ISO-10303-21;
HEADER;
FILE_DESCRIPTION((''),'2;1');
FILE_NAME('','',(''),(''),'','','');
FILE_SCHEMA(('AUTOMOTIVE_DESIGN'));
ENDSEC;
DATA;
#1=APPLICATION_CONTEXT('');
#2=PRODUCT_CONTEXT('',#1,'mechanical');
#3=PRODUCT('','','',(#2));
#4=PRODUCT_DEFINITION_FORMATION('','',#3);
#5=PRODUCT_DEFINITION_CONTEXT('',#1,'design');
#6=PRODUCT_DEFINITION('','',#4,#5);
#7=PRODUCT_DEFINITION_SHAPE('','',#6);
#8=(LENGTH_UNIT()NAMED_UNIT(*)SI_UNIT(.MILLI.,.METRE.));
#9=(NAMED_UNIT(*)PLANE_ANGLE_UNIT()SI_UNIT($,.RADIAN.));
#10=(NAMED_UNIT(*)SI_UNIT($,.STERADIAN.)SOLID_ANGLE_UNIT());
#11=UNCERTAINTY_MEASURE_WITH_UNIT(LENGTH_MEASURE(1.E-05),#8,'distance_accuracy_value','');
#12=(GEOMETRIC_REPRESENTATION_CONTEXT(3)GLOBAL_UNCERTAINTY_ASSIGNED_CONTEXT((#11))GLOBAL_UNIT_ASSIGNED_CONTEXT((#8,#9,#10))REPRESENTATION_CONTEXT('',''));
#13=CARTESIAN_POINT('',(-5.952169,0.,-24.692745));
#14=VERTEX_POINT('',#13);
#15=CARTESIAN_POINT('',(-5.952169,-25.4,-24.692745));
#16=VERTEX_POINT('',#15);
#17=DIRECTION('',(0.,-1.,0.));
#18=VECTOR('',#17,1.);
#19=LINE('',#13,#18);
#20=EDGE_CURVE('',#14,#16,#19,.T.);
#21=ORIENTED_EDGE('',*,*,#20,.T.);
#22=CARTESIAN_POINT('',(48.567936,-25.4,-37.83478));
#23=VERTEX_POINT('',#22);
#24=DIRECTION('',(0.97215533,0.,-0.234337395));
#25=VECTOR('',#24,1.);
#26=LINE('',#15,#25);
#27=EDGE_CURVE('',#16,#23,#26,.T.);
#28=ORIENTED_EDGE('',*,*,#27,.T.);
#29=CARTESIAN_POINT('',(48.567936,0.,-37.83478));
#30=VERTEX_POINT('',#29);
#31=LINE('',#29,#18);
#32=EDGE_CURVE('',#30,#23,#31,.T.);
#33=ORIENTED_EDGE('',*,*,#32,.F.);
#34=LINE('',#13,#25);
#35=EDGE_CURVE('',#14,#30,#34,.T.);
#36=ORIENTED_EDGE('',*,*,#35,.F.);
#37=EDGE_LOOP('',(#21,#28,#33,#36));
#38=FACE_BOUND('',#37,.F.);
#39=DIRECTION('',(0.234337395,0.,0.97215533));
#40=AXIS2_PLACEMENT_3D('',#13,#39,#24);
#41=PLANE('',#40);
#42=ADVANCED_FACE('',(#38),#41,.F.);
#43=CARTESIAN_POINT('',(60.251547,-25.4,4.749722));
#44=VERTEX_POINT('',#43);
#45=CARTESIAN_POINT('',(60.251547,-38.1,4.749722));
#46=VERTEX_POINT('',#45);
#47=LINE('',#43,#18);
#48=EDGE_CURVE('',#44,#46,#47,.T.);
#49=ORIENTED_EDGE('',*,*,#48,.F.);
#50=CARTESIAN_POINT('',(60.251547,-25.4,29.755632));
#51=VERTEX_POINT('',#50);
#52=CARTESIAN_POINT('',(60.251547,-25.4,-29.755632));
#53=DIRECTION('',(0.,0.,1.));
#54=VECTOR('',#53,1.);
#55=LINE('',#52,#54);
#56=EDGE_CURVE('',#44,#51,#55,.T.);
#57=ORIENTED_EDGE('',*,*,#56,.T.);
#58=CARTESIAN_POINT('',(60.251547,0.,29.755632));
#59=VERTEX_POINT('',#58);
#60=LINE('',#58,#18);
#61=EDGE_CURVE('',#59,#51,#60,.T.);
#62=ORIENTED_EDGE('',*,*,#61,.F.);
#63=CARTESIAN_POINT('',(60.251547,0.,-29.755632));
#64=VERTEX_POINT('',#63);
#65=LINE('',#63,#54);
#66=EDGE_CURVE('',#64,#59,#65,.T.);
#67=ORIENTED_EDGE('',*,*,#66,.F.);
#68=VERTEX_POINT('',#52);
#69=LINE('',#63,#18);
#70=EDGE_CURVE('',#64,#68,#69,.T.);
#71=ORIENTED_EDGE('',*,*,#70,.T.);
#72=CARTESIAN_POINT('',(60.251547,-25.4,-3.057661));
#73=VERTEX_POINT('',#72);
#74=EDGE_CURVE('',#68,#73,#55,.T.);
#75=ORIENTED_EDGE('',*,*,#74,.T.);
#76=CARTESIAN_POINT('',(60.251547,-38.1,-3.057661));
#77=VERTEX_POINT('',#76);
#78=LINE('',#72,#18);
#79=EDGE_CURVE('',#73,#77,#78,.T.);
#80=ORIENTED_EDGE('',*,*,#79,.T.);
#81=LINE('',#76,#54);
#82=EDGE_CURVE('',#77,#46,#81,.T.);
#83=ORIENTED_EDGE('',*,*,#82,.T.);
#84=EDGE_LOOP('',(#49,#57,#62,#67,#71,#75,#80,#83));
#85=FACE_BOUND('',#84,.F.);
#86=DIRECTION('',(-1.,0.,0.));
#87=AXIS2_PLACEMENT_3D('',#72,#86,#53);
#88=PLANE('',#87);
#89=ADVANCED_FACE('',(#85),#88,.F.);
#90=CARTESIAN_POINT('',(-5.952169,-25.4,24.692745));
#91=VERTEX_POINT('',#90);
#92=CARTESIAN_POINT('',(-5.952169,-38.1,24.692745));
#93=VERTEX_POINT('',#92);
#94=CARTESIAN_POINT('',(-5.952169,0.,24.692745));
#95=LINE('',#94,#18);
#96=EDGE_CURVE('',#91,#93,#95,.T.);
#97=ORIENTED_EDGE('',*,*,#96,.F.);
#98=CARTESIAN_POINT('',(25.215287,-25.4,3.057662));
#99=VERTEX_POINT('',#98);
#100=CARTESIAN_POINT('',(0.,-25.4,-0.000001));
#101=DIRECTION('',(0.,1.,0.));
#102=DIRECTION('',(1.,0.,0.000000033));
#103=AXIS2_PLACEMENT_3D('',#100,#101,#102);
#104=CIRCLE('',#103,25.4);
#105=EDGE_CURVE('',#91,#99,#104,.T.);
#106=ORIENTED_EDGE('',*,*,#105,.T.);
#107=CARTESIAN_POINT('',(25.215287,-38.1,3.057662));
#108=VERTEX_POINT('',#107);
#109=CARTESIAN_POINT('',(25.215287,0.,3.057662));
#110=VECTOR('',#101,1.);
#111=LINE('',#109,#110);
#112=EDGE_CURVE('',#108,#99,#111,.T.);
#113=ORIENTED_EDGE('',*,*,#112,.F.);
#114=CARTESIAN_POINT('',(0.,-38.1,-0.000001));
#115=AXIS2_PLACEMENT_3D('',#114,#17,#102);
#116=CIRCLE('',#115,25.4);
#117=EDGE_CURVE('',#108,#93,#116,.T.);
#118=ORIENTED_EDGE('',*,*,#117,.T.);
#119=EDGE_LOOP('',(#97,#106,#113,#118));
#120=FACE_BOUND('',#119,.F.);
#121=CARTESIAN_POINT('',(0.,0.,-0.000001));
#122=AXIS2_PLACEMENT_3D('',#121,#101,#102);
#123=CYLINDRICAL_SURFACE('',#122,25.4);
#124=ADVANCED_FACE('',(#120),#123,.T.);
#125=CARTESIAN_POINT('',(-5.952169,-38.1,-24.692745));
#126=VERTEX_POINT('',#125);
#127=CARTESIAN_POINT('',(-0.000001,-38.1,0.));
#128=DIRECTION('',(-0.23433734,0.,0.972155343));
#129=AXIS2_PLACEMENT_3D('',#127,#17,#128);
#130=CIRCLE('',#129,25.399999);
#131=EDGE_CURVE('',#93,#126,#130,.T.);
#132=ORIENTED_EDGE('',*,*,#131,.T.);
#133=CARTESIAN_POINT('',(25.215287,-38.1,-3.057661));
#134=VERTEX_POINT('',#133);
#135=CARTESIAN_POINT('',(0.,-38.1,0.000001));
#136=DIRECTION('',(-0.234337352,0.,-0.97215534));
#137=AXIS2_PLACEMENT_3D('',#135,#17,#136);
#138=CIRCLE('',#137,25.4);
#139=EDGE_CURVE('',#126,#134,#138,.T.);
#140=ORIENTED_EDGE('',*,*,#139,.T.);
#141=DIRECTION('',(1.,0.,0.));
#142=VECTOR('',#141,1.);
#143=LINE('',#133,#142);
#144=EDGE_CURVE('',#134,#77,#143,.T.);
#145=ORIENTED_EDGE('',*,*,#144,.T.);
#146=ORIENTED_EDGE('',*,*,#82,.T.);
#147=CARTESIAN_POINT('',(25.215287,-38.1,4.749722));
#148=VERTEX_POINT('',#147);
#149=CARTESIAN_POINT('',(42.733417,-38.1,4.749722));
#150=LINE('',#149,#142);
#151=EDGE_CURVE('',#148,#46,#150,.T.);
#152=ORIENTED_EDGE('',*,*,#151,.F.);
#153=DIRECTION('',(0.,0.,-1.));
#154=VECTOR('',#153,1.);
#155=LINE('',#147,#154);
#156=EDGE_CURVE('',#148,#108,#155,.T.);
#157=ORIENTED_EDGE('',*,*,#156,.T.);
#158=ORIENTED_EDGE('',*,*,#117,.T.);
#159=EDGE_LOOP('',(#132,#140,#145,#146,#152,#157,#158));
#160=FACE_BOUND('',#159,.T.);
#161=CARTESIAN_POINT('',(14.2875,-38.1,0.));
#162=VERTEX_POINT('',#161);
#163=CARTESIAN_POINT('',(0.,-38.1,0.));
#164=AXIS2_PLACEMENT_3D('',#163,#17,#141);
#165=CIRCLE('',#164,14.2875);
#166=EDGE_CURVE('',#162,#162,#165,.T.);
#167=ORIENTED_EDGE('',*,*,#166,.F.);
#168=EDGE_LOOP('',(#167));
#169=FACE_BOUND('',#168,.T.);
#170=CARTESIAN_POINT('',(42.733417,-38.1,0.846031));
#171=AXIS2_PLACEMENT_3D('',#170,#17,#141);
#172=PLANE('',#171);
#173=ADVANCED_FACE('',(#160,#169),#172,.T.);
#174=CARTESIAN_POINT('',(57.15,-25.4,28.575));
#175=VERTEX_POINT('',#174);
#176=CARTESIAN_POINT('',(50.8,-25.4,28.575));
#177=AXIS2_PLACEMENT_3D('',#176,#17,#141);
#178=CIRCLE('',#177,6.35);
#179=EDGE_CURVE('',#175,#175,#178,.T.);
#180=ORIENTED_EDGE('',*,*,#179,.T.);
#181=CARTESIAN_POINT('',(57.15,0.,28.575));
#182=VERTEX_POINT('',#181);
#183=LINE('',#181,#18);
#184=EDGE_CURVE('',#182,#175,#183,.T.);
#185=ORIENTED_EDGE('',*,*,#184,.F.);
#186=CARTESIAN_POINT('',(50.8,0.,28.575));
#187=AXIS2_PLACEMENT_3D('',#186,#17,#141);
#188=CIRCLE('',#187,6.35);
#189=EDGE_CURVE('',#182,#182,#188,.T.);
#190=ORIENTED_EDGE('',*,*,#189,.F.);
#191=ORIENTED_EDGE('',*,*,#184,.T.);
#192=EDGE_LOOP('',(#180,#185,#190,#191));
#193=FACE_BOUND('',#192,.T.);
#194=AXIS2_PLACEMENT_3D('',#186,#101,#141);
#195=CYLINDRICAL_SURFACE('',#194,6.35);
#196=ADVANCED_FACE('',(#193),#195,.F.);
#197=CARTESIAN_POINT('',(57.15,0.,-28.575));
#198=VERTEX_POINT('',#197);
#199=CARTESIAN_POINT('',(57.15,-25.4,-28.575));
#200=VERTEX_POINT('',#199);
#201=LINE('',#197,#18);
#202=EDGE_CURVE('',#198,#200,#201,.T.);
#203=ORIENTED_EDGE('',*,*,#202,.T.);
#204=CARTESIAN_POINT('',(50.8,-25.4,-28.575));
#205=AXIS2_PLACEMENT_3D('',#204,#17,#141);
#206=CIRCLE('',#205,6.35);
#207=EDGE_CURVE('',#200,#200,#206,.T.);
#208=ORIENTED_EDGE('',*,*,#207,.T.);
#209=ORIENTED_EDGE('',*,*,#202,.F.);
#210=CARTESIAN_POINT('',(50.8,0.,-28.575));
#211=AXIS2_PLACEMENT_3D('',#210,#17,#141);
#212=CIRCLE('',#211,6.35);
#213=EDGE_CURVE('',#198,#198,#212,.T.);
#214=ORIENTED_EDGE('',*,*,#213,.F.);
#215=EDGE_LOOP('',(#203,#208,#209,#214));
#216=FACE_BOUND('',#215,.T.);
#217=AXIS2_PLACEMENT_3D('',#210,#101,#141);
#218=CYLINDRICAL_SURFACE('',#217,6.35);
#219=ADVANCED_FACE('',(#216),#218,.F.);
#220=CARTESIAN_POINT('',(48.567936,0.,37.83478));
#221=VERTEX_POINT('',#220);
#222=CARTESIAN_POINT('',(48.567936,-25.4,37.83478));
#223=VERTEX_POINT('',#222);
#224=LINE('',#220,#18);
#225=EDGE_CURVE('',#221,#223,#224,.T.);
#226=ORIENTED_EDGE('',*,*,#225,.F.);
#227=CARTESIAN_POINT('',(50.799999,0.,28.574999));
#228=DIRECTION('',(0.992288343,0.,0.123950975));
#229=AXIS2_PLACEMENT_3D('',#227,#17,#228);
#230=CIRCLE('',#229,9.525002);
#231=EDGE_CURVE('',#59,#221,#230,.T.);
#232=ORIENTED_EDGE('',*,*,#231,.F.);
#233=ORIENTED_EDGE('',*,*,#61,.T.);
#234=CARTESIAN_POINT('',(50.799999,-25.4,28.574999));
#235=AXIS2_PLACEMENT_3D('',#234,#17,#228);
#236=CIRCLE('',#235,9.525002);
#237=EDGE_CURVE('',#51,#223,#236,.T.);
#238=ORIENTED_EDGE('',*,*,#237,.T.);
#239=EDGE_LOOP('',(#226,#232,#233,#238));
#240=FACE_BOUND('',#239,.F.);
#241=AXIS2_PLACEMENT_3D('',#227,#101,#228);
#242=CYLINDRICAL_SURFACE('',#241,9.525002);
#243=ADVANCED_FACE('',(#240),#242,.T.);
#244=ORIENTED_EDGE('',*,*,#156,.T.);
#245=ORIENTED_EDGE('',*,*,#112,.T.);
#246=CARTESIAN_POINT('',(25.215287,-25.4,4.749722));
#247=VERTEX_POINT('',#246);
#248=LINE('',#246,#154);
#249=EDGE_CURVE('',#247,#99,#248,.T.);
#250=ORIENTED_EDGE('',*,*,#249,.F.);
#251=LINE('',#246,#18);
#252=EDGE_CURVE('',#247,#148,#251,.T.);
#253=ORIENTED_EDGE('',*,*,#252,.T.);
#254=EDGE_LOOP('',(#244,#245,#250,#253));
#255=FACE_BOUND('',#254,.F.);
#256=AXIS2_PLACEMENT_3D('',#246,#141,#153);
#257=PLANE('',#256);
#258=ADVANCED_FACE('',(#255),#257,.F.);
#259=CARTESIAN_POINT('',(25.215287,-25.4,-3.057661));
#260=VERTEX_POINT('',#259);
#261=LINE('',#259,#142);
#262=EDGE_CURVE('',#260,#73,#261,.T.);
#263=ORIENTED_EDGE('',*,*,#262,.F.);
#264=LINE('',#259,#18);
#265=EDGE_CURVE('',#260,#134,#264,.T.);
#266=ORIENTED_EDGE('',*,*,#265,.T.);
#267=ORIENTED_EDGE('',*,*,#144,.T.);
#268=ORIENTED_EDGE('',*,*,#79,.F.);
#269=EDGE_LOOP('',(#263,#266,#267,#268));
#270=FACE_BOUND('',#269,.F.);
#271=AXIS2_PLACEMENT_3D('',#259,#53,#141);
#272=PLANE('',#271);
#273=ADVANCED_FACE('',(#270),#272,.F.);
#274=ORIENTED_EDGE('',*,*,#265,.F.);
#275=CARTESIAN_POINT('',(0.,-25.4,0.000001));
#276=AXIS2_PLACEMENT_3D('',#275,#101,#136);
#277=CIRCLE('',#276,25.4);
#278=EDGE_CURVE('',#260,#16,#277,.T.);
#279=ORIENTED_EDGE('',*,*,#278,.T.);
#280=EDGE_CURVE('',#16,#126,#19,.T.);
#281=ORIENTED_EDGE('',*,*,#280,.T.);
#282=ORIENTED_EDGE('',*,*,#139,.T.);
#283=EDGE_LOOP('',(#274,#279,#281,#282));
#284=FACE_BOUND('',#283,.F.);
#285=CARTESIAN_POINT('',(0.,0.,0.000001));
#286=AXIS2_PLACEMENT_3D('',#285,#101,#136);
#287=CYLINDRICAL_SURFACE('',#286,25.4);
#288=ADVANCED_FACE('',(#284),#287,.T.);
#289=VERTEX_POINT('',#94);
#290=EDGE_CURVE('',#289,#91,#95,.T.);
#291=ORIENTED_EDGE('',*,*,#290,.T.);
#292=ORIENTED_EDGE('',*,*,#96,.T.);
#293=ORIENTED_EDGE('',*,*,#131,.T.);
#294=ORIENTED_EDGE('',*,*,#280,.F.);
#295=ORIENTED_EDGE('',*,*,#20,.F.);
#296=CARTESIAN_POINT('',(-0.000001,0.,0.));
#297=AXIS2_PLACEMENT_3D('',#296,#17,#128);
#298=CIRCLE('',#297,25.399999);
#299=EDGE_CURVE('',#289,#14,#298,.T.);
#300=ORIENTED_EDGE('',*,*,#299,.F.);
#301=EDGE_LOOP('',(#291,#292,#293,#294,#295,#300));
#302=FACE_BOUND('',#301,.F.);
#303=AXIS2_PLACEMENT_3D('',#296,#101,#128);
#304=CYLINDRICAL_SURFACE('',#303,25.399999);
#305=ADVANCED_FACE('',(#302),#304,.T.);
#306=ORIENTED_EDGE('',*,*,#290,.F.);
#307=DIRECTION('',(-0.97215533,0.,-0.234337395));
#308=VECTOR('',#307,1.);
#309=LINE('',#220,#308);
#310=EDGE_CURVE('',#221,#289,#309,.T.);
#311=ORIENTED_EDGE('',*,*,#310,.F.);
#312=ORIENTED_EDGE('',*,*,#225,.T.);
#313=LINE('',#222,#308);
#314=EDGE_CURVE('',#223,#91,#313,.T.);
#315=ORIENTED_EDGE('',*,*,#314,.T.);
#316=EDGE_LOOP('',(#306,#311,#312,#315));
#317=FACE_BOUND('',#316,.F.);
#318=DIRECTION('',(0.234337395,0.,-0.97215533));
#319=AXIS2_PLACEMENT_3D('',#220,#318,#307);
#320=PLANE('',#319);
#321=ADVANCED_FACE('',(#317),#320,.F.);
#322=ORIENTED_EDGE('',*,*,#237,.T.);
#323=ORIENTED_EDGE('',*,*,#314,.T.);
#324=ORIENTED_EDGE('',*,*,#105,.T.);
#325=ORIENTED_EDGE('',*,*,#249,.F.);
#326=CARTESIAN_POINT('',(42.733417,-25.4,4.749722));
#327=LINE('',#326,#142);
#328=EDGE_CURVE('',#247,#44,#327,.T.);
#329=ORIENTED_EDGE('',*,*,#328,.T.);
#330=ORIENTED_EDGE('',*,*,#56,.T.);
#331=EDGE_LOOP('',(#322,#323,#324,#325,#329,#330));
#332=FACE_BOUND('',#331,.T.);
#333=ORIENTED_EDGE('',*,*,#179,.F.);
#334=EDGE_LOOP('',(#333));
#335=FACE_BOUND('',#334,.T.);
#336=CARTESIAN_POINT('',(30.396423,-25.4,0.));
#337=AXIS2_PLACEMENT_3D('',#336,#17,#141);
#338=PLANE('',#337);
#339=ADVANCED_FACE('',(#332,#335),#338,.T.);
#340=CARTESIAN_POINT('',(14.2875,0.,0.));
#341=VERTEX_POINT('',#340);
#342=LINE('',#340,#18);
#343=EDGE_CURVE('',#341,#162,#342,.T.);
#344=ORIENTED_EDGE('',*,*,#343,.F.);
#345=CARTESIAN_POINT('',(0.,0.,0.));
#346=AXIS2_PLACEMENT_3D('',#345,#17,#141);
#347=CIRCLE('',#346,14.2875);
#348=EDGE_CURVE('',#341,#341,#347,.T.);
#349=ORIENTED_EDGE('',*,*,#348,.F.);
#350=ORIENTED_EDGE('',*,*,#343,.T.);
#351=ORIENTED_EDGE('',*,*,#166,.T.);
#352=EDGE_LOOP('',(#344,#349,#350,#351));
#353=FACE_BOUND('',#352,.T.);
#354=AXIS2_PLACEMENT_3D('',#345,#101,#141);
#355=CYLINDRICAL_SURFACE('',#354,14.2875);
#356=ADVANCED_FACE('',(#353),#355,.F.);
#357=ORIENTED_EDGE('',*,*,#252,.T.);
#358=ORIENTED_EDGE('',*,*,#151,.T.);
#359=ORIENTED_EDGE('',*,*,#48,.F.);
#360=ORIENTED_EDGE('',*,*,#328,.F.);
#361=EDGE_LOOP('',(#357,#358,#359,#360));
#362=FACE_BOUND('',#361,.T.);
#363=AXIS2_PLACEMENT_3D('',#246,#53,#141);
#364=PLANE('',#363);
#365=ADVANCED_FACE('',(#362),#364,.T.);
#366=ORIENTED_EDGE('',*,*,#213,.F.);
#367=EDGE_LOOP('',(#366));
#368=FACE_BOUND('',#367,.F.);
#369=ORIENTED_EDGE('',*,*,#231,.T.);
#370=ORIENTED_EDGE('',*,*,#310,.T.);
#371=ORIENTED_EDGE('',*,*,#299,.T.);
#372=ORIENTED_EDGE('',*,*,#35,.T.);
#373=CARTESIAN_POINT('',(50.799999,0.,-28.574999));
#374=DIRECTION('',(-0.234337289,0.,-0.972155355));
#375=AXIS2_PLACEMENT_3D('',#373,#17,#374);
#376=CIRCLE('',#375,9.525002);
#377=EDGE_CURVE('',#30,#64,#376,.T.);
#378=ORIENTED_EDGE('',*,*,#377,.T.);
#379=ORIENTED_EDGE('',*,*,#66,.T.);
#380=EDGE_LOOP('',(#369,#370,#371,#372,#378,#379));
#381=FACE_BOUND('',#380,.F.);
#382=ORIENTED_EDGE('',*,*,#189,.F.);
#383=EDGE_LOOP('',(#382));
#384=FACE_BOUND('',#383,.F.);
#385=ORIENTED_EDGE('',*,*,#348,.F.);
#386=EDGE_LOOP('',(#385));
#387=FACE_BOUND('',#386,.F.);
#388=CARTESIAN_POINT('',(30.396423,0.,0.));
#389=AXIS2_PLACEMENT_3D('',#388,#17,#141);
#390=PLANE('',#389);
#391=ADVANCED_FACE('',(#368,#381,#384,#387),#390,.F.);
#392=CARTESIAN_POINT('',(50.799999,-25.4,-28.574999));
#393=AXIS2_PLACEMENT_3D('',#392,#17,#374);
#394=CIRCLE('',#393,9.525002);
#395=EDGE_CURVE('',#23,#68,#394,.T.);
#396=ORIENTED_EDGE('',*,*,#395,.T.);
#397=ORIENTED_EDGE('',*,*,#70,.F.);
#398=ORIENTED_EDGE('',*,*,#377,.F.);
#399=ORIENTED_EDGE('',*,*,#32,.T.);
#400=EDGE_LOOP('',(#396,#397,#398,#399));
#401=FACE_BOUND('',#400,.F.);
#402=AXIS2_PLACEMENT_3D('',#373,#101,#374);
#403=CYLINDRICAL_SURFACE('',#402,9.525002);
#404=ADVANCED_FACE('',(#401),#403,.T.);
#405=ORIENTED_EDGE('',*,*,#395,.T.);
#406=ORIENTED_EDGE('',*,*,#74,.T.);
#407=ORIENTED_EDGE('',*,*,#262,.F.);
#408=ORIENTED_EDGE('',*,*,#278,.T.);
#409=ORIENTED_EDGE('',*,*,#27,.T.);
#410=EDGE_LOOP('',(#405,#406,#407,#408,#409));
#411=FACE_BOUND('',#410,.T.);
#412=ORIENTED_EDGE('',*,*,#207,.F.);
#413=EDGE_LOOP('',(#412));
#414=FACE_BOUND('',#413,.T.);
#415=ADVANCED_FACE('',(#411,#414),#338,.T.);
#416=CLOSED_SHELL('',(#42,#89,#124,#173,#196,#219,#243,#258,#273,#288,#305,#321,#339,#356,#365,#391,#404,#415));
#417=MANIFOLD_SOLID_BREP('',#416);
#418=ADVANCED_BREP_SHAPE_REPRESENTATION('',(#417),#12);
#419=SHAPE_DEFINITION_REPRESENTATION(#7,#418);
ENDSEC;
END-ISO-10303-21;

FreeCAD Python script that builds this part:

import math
import FreeCAD as App
import Part
import Sketcher

V = App.Vector
Q = App.Units.Quantity


def add_polygon(sketch, points):
    """Adds a closed chain of lines whose ends are joined by coincident constraints."""
    first, n = sketch.GeometryCount, len(points)
    for a, b in zip(points, points[1:] + points[:1]):
        sketch.addGeometry(Part.LineSegment(App.Vector(*a, 0), App.Vector(*b, 0)), False)
    for i in range(n):
        sketch.addConstraint(Sketcher.Constraint("Coincident", first + i, 2, first + (i + 1) % n, 1))

doc = App.newDocument("Part")
body = doc.addObject("PartDesign::Body", "Body")

# Sketch on XZ plane
sketch1 = body.newObject("Sketcher::SketchObject", "Sketch")
sketch1.AttachmentSupport = (doc.getObject("XZ_Plane"), [""])
sketch1.MapMode = "FlatFace"
sketch1.addGeometry([
    Part.LineSegment(V(48.567936, 37.83478, 0), V(-5.952169, 24.692745, 0)),  # 0
    Part.ArcOfCircle(Part.Circle(V(-0.000001, 0, 0), V(0, 0, 1), 25.399999), math.radians(103.552564), math.radians(256.447436)),  # 1
    Part.LineSegment(V(-5.952169, -24.692745, 0), V(48.567936, -37.83478, 0)),  # 2
    Part.ArcOfCircle(Part.Circle(V(50.799999, -28.574999, 0), V(0, 0, 1), 9.525002), math.radians(-103.552561), math.radians(-7.12018)),  # 3
    Part.LineSegment(V(60.251547, -29.755632, 0), V(60.251547, 29.755632, 0)),  # 4
    Part.ArcOfCircle(Part.Circle(V(50.799999, 28.574999, 0), V(0, 0, 1), 9.525002), math.radians(7.12018), math.radians(103.552561)),  # 5
    Part.Circle(V(50.8, -28.575, 0), V(0, 0, 1), 6.35),  # 6
    Part.Circle(V(0, 0, 0), V(0, 0, 1), 14.2875),  # 7
    Part.Circle(V(50.8, 28.575, 0), V(0, 0, 1), 6.35),  # 8
], False)
sketch1.addConstraint([
    Sketcher.Constraint("Tangent", 0, 2, 1, 1),
    Sketcher.Constraint("Tangent", 1, 2, 2, 1),
    Sketcher.Constraint("Tangent", 2, 2, 3, 1),
    Sketcher.Constraint("Coincident", 3, 2, 4, 1),
    Sketcher.Constraint("Coincident", 4, 2, 5, 1),
    Sketcher.Constraint("Tangent", 5, 2, 0, 1),
    Sketcher.Constraint("Vertical", 4),
    Sketcher.Constraint("Coincident", 1, 3, -1, 1),
    Sketcher.Constraint("Coincident", 7, 3, -1, 1),
    Sketcher.Constraint("Coincident", 6, 3, 3, 3),
    Sketcher.Constraint("Coincident", 8, 3, 5, 3),
    Sketcher.Constraint("Equal", 3, 5),
    Sketcher.Constraint("Equal", 6, 8),
    Sketcher.Constraint("Symmetric", 3, 3, 5, 3, -1),
    Sketcher.Constraint("Radius", 1, Q("1 in")),
    Sketcher.Constraint("Diameter", 6, Q("0.5 in")),
    Sketcher.Constraint("Diameter", 7, Q("1.125 in")),
    Sketcher.Constraint("DistanceX", -1, 1, 3, 3, Q("2 in")),
    Sketcher.Constraint("Radius", 3, Q("0.3750001 in")),
    Sketcher.Constraint("DistanceY", 3, 3, 5, 3, Q("2.2499999 in")),
    Sketcher.Constraint("DistanceY", 4, 1, 4, 2, 59.511264),
])
pad1 = body.newObject("PartDesign::Pad", "Pad")
pad1.Profile = sketch1
pad1.Length = Q("1 in")

# Sketch on XZ plane
sketch2 = body.newObject("Sketcher::SketchObject", "Sketch001")
sketch2.AttachmentSupport = (doc.getObject("XZ_Plane"), [""])
sketch2.MapMode = "FlatFace"
sketch2.addGeometry([
    Part.ArcOfCircle(Part.Circle(V(0, 0.000001, 0), V(0, 0, 1), 25.4), math.radians(-103.552565), math.radians(-0.000002)),
    Part.ArcOfCircle(Part.Circle(V(0, -0.000001, 0), V(0, 0, 1), 25.4), math.radians(0.000002), math.radians(103.552565)),
    Part.ArcOfCircle(Part.Circle(V(-0.000001, 0, 0), V(0, 0, 1), 25.399999), math.radians(103.552564), math.radians(256.447436)),
    Part.Circle(V(0, 0, 0), V(0, 0, 1), 14.2875),
], False)
sketch2.addConstraint([
    Sketcher.Constraint("Tangent", 0, 2, 1, 1),
    Sketcher.Constraint("Tangent", 1, 2, 2, 1),
    Sketcher.Constraint("Tangent", 2, 2, 0, 1),
    Sketcher.Constraint("Coincident", 0, 3, -1, 1),
    Sketcher.Constraint("Coincident", 3, 3, -1, 1),
    Sketcher.Constraint("PointOnObject", 0, 2, -1),
    Sketcher.Constraint("Vertical", 1, 2, 2, 2),
    Sketcher.Constraint("Radius", 0, Q("1 in")),
    Sketcher.Constraint("Diameter", 3, Q("1.125 in")),
    Sketcher.Constraint("DistanceX", 1, 2, -1, 1, 5.952169),
])
pad2 = body.newObject("PartDesign::Pad", "Pad001")
pad2.Profile = sketch2
pad2.Length = Q("1.5 in")

# Sketch on XZ plane
sketch3 = body.newObject("Sketcher::SketchObject", "Sketch002")
sketch3.AttachmentSupport = (doc.getObject("XZ_Plane"), [""])
sketch3.MapMode = "FlatFace"
sketch3.AttachmentOffset = App.Placement(V(0, 0, 1 * 25.4), App.Rotation())
add_polygon(sketch3, [(25.215287, -3.057661), (60.251547, -3.057661), (60.251547, 4.749722), (25.215287, 4.749722)])  # lines 0-3
sketch3.addConstraint([
    Sketcher.Constraint("Horizontal", 0),
    Sketcher.Constraint("Vertical", 1),
    Sketcher.Constraint("Horizontal", 2),
    Sketcher.Constraint("Vertical", 3),
    Sketcher.Constraint("DistanceX", 0, 1, 0, 2, 35.03626),
    Sketcher.Constraint("DistanceY", 1, 1, 1, 2, 7.807384),
    Sketcher.Constraint("DistanceY", 0, 2, -1, 1, 3.057661),
    Sketcher.Constraint("DistanceX", -1, 1, 0, 2, 60.251547),
])
pad3 = body.newObject("PartDesign::Pad", "Pad002")
pad3.Profile = sketch3
pad3.Length = Q("0.5 in")

doc.recompute()
